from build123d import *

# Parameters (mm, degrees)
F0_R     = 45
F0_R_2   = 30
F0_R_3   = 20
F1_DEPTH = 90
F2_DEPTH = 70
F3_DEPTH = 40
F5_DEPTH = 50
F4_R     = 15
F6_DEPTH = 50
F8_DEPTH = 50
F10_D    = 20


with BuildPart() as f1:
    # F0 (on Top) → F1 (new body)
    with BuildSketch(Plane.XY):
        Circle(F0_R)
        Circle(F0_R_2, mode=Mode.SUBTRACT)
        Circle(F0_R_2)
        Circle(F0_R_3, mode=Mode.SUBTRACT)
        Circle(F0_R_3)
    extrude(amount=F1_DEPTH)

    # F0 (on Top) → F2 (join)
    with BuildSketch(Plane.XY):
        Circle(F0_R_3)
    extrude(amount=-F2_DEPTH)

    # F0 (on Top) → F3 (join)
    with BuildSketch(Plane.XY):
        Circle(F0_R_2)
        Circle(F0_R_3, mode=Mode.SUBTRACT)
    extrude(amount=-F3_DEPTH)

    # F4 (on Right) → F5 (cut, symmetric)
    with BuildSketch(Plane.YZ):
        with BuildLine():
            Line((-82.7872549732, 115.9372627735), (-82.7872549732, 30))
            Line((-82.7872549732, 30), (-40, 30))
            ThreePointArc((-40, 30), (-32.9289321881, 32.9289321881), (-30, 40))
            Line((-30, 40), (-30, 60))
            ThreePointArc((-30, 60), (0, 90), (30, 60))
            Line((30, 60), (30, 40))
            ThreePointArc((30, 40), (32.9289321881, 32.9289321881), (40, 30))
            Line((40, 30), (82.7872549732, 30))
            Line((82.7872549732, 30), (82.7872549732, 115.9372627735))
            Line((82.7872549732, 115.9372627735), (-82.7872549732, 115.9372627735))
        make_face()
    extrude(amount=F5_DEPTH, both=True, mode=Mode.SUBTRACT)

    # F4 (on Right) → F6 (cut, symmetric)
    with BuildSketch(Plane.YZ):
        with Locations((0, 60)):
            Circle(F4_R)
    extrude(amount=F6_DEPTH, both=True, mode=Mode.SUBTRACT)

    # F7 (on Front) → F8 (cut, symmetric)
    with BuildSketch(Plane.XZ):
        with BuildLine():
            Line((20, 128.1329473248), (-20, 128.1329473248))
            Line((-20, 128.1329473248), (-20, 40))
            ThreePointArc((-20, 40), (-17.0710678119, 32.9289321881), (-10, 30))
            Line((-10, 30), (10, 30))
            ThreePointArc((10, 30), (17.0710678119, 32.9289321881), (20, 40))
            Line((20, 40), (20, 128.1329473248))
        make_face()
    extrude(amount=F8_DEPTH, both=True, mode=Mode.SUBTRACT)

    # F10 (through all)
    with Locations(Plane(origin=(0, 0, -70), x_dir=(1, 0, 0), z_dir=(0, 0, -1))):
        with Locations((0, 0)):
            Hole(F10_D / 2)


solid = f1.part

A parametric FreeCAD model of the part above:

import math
import FreeCAD as App
import Part
import Sketcher

V = App.Vector
Q = App.Units.Quantity

doc = App.newDocument("Part")
body = doc.addObject("PartDesign::Body", "Body")

# Sketch on XY plane
sketch1 = body.newObject("Sketcher::SketchObject", "Sketch")
sketch1.AttachmentSupport = (doc.getObject("XY_Plane"), [""])
sketch1.MapMode = "FlatFace"
sketch1.addGeometry(Part.Circle(V(0, 0, 0), V(0, 0, 1), 45), False)
sketch1.addConstraint([
    Sketcher.Constraint("Coincident", 0, 3, -1, 1),
    Sketcher.Constraint("Diameter", 0, Q("90 mm")),
])
pad1 = body.newObject("PartDesign::Pad", "Pad")
pad1.Profile = sketch1
pad1.Length = 90

# Sketch on XY plane
sketch2 = body.newObject("Sketcher::SketchObject", "Sketch001")
sketch2.AttachmentSupport = (doc.getObject("XY_Plane"), [""])
sketch2.MapMode = "FlatFace"
sketch2.addGeometry(Part.Circle(V(0, 0, 0), V(0, 0, 1), 20), False)
sketch2.addConstraint([
    Sketcher.Constraint("Coincident", 0, 3, -1, 1),
    Sketcher.Constraint("Diameter", 0, Q("40 mm")),
])
pad2 = body.newObject("PartDesign::Pad", "Pad001")
pad2.Profile = sketch2
pad2.Length = 70
pad2.Reversed = True

# Sketch on XY plane
sketch3 = body.newObject("Sketcher::SketchObject", "Sketch002")
sketch3.AttachmentSupport = (doc.getObject("XY_Plane"), [""])
sketch3.MapMode = "FlatFace"
sketch3.addGeometry([
    Part.Circle(V(0, 0, 0), V(0, 0, 1), 30),
    Part.Circle(V(0, 0, 0), V(0, 0, 1), 20),
], False)
sketch3.addConstraint([
    Sketcher.Constraint("Coincident", 0, 3, -1, 1),
    Sketcher.Constraint("Coincident", 1, 3, -1, 1),
    Sketcher.Constraint("Diameter", 0, Q("60 mm")),
    Sketcher.Constraint("Diameter", 1, Q("40 mm")),
])
pad3 = body.newObject("PartDesign::Pad", "Pad002")
pad3.Profile = sketch3
pad3.Length = 40
pad3.Reversed = True

# Sketch on YZ plane
sketch4 = body.newObject("Sketcher::SketchObject", "Sketch003")
sketch4.AttachmentSupport = (doc.getObject("YZ_Plane"), [""])
sketch4.MapMode = "FlatFace"
sketch4.addGeometry([
    Part.LineSegment(V(-83, 116, 0), V(-83, 30, 0)),  # 0
    Part.LineSegment(V(-83, 30, 0), V(-40, 30, 0)),  # 1
    Part.ArcOfCircle(Part.Circle(V(-40, 40, 0), V(0, 0, 1), 10), math.radians(-90), math.radians(0)),  # 2
    Part.LineSegment(V(-30, 40, 0), V(-30, 60, 0)),  # 3
    Part.ArcOfCircle(Part.Circle(V(0, 60, 0), V(0, 0, 1), 30), math.radians(0), math.radians(180)),  # 4
    Part.LineSegment(V(30, 60, 0), V(30, 40, 0)),  # 5
    Part.ArcOfCircle(Part.Circle(V(40, 40, 0), V(0, 0, 1), 10), math.radians(180), math.radians(270)),  # 6
    Part.LineSegment(V(40, 30, 0), V(83, 30, 0)),  # 7
    Part.LineSegment(V(83, 30, 0), V(83, 116, 0)),  # 8
    Part.LineSegment(V(83, 116, 0), V(-83, 116, 0)),  # 9
], False)
sketch4.addConstraint([
    Sketcher.Constraint("Coincident", 0, 2, 1, 1),
    Sketcher.Constraint("Tangent", 1, 2, 2, 1),
    Sketcher.Constraint("Tangent", 2, 2, 3, 1),
    Sketcher.Constraint("Tangent", 3, 2, 4, 2),
    Sketcher.Constraint("Tangent", 4, 1, 5, 1),
    Sketcher.Constraint("Tangent", 5, 2, 6, 1),
    Sketcher.Constraint("Tangent", 6, 2, 7, 1),
    Sketcher.Constraint("Coincident", 7, 2, 8, 1),
    Sketcher.Constraint("Coincident", 8, 2, 9, 1),
    Sketcher.Constraint("Coincident", 9, 2, 0, 1),
    Sketcher.Constraint("Vertical", 0),
    Sketcher.Constraint("Horizontal", 1),
    Sketcher.Constraint("Vertical", 3),
    Sketcher.Constraint("Vertical", 5),
    Sketcher.Constraint("Horizontal", 7),
    Sketcher.Constraint("Vertical", 8),
    Sketcher.Constraint("Horizontal", 9),
    Sketcher.Constraint("Equal", 2, 6),
    Sketcher.Constraint("Symmetric", 2, 3, 6, 3, -2),
    Sketcher.Constraint("Equal", 1, 7),
    Sketcher.Constraint("Radius", 2, Q("10 mm")),
    Sketcher.Constraint("Radius", 4, Q("30 mm")),
    Sketcher.Constraint("DistanceY", 3, 1, 3, 2, Q("20 mm")),
    Sketcher.Constraint("DistanceY", -1, 1, 2, 3, Q("40 mm")),
    Sketcher.Constraint("DistanceX", 9, 2, 9, 1, Q("165.57451 mm")),
    Sketcher.Constraint("DistanceY", 0, 2, 0, 1, Q("85.937263 mm")),
])
pocket1 = body.newObject("PartDesign::Pocket", "Pocket")
pocket1.Profile = sketch4
pocket1.Length = 100
pocket1.Midplane = True

# Sketch on YZ plane
sketch5 = body.newObject("Sketcher::SketchObject", "Sketch004")
sketch5.AttachmentSupport = (doc.getObject("YZ_Plane"), [""])
sketch5.MapMode = "FlatFace"
sketch5.addGeometry(Part.Circle(V(0, 60, 0), V(0, 0, 1), 15), False)
sketch5.addConstraint([
    Sketcher.Constraint("PointOnObject", 0, 3, -2),
    Sketcher.Constraint("Diameter", 0, Q("30 mm")),
    Sketcher.Constraint("DistanceY", -1, 1, 0, 3, Q("60 mm")),
])
pocket2 = body.newObject("PartDesign::Pocket", "Pocket001")
pocket2.Profile = sketch5
pocket2.Length = 100
pocket2.Midplane = True

# Sketch on XZ plane
sketch6 = body.newObject("Sketcher::SketchObject", "Sketch005")
sketch6.AttachmentSupport = (doc.getObject("XZ_Plane"), [""])
sketch6.MapMode = "FlatFace"
sketch6.addGeometry([
    Part.LineSegment(V(20, 128, 0), V(-20, 128, 0)),  # 0
    Part.LineSegment(V(-20, 128, 0), V(-20, 40, 0)),  # 1
    Part.ArcOfCircle(Part.Circle(V(-10, 40, 0), V(0, 0, 1), 10), math.radians(180), math.radians(270)),  # 2
    Part.LineSegment(V(-10, 30, 0), V(10, 30, 0)),  # 3
    Part.ArcOfCircle(Part.Circle(V(10, 40, 0), V(0, 0, 1), 10), math.radians(-90), math.radians(0)),  # 4
    Part.LineSegment(V(20, 40, 0), V(20, 128, 0)),  # 5
], False)
sketch6.addConstraint([
    Sketcher.Constraint("Coincident", 0, 2, 1, 1),
    Sketcher.Constraint("Tangent", 1, 2, 2, 1),
    Sketcher.Constraint("Tangent", 2, 2, 3, 1),
    Sketcher.Constraint("Tangent", 3, 2, 4, 1),
    Sketcher.Constraint("Tangent", 4, 2, 5, 1),
    Sketcher.Constraint("Coincident", 5, 2, 0, 1),
    Sketcher.Constraint("Horizontal", 0),
    Sketcher.Constraint("Vertical", 1),
    Sketcher.Constraint("Horizontal", 3),
    Sketcher.Constraint("Vertical", 5),
    Sketcher.Constraint("Equal", 2, 4),
    Sketcher.Constraint("Radius", 2, Q("10 mm")),
    Sketcher.Constraint("DistanceX", 0, 2, 0, 1, Q("40 mm")),
    Sketcher.Constraint("DistanceX", 2, 3, -1, 1, Q("10 mm")),
    Sketcher.Constraint("DistanceY", -1, 1, 2, 3, Q("40 mm")),
    Sketcher.Constraint("DistanceY", 1, 2, 1, 1, Q("88.132947 mm")),
])
pocket3 = body.newObject("PartDesign::Pocket", "Pocket002")
pocket3.Profile = sketch6
pocket3.Length = 100
pocket3.Midplane = True

# Sketch on XY plane
sketch7 = body.newObject("Sketcher::SketchObject", "Sketch006")
sketch7.AttachmentSupport = (doc.getObject("XY_Plane"), [""])
sketch7.MapMode = "FlatFace"
sketch7.AttachmentOffset = App.Placement(V(0, 0, -70), App.Rotation())
sketch7.addGeometry(Part.Circle(V(0, 0, 0), V(0, 0, 1), 10), False)
sketch7.addConstraint([
    Sketcher.Constraint("Coincident", 0, 3, -1, 1),
    Sketcher.Constraint("Diameter", 0, Q("20 mm")),
])
doc.recompute()
hole = body.newObject("PartDesign::Hole", "Hole")
hole.Profile = sketch7
hole.ThreadType = "None"
hole.Diameter = 20
hole.DepthType = "ThroughAll"
hole.Reversed = True

doc.recompute()
